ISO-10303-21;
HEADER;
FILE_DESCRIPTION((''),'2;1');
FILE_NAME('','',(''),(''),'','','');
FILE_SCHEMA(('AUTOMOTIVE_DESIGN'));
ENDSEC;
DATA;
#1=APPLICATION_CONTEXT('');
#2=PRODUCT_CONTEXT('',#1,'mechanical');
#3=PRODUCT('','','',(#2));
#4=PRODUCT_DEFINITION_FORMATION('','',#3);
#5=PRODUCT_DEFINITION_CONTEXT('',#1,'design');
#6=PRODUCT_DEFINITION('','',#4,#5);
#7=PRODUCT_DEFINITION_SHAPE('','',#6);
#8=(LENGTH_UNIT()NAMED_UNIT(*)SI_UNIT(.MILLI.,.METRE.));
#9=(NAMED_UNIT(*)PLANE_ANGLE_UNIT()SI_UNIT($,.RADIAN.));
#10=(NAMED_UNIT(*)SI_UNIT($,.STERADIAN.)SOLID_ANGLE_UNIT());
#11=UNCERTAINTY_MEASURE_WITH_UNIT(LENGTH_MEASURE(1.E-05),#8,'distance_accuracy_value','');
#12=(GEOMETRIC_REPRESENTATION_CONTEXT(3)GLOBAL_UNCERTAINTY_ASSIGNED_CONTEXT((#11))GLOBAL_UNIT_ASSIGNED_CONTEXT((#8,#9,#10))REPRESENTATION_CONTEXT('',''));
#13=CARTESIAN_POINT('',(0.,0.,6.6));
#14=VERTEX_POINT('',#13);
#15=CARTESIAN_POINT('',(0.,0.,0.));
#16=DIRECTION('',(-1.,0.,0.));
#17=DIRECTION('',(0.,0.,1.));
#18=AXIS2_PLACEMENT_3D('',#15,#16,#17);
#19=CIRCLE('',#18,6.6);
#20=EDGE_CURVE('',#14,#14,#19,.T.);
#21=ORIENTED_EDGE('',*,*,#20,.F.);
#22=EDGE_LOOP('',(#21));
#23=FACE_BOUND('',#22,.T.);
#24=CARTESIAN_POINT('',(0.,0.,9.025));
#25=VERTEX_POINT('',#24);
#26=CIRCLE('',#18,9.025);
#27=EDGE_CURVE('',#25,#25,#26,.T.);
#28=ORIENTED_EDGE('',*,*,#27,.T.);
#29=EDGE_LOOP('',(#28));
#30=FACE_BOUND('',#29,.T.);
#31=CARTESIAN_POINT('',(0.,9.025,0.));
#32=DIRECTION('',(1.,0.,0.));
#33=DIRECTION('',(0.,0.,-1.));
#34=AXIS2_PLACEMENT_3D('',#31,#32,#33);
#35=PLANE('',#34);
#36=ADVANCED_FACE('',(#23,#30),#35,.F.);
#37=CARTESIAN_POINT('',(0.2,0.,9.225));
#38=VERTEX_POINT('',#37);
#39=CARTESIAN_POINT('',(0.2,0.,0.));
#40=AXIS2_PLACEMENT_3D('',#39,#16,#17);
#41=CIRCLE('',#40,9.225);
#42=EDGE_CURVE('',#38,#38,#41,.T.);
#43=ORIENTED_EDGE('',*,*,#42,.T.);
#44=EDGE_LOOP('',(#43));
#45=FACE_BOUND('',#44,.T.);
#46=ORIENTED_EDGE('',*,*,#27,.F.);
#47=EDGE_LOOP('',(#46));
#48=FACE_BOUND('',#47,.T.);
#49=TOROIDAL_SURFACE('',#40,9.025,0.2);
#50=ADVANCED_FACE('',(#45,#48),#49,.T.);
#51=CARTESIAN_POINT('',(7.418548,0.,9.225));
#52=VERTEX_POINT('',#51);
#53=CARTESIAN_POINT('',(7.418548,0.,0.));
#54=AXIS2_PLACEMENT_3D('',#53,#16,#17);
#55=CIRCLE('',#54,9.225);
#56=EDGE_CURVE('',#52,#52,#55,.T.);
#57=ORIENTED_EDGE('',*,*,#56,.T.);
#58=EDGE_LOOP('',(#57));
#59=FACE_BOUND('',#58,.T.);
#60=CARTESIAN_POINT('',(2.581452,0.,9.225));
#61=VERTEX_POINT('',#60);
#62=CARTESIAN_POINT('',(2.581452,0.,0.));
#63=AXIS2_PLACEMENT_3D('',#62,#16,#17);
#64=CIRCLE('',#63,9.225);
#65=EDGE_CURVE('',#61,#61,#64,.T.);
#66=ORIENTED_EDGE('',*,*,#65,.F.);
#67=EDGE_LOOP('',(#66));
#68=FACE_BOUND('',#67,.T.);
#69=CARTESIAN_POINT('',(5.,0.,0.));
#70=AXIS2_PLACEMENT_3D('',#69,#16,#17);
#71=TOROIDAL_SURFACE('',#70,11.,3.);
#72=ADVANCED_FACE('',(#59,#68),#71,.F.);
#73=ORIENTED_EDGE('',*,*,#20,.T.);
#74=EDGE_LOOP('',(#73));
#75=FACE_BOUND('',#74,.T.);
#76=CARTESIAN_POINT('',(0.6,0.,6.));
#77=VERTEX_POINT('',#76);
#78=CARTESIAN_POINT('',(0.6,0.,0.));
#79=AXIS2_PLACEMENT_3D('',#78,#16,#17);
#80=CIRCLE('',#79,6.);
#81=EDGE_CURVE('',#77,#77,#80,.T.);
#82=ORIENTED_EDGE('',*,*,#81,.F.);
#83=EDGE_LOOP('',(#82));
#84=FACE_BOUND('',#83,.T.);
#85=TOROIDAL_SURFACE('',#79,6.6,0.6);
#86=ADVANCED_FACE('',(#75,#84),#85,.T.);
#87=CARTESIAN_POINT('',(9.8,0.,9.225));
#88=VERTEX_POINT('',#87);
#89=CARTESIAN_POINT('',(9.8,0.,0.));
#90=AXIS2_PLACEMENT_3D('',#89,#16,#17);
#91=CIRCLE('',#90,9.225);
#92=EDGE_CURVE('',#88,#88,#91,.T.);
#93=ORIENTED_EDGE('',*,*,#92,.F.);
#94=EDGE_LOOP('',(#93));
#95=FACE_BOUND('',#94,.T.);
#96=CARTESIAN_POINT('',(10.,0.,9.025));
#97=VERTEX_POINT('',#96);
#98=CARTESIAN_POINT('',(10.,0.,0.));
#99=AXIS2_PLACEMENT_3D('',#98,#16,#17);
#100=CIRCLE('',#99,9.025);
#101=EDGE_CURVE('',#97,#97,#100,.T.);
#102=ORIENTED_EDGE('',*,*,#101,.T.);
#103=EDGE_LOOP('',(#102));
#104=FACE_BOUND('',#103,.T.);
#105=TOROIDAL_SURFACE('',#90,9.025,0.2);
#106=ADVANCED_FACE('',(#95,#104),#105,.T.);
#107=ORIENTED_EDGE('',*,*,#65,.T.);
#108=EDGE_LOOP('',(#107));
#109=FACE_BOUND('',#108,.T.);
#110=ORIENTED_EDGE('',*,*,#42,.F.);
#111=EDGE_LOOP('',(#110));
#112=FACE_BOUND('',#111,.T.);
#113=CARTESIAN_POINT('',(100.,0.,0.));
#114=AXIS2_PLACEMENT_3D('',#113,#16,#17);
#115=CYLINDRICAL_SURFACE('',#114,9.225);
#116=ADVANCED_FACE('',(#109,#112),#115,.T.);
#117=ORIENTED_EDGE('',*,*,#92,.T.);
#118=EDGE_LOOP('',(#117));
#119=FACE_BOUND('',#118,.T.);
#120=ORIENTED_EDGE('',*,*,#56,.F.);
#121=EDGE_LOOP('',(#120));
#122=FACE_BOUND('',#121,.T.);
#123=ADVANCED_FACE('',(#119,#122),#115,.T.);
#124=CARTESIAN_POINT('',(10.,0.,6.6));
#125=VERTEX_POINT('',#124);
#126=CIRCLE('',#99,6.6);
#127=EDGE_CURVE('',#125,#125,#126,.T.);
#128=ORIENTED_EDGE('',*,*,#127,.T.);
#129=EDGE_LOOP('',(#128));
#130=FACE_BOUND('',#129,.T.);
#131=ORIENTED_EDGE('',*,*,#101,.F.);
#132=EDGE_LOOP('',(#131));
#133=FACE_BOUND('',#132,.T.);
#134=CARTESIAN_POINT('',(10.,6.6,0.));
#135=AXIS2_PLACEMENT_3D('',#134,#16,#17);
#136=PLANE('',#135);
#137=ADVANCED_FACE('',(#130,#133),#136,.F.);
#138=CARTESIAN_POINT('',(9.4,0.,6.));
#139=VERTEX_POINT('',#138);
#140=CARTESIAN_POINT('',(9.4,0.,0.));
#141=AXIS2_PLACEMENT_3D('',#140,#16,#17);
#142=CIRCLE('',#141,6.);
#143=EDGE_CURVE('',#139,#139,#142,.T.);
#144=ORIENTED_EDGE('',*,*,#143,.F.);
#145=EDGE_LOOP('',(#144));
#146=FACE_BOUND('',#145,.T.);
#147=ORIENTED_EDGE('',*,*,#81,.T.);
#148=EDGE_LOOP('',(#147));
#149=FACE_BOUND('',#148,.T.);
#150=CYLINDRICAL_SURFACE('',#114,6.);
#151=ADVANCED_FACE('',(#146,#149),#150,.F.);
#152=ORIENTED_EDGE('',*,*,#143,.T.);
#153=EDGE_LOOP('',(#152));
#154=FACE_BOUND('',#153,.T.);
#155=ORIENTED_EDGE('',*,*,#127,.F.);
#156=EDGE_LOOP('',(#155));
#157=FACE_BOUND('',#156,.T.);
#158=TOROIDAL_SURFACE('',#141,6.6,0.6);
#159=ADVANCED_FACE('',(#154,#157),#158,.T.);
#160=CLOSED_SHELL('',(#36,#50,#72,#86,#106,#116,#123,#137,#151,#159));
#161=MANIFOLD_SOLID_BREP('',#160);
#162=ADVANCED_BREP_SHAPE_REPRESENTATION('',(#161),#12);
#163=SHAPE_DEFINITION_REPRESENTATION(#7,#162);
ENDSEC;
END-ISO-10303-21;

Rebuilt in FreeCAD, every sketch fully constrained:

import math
import FreeCAD as App
import Part
import Sketcher
from FreeCAD import Vector
Q = App.Units.Quantity

doc = App.newDocument("Part")
params = doc.addObject("Spreadsheet::Sheet", "Params")
for row, (alias, value) in enumerate([
    ("sketch1_radius", "3 mm"),
    ("sketch1_radius2", "0.6 mm"),
    ("sketch1_radius3", "0.2 mm"),
    ("sketch1_width", "8.8 mm"),
    ("revolution_angle", "360 deg"),
], start=1):
    params.set(f"A{row}", alias)
    params.set(f"B{row}", "=" + value)
    params.setAlias(f"B{row}", alias)

body = doc.addObject("PartDesign::Body", "Body")

# Sketch on XY plane
sketch1 = body.newObject("Sketcher::SketchObject", "Sketch")
sketch1.AttachmentSupport = (doc.getObject("XY_Plane"), [""])
sketch1.MapMode = "FlatFace"
sketch1.addGeometry(Part.LineSegment(Vector(0.6, 6, 0), Vector(9.4, 6, 0)), False)
sketch1.addGeometry(Part.ArcOfCircle(Part.Circle(Vector(9.4, 6.6, 0), Vector(0, 0, 1), 0.6), math.radians(-90), math.radians(0)), False)
sketch1.addGeometry(Part.LineSegment(Vector(10, 6.6, 0), Vector(10, 9.03, 0)), False)
sketch1.addGeometry(Part.ArcOfCircle(Part.Circle(Vector(9.8, 9.02, 0), Vector(0, 0, 1), 0.2), math.radians(0), math.radians(90)), False)
sketch1.addGeometry(Part.LineSegment(Vector(9.8, 9.22, 0), Vector(7.42, 9.22, 0)), False)
sketch1.addGeometry(Part.ArcOfCircle(Part.Circle(Vector(5, 11, 0), Vector(0, 0, 1), 3), math.radians(-144), math.radians(-36)), False)
sketch1.addGeometry(Part.LineSegment(Vector(2.58, 9.22, 0), Vector(0.2, 9.22, 0)), False)
sketch1.addGeometry(Part.ArcOfCircle(Part.Circle(Vector(0.2, 9.02, 0), Vector(0, 0, 1), 0.2), math.radians(90), math.radians(180)), False)
sketch1.addGeometry(Part.LineSegment(Vector(0, 9.03, 0), Vector(0, 6.6, 0)), False)
sketch1.addGeometry(Part.ArcOfCircle(Part.Circle(Vector(0.6, 6.6, 0), Vector(0, 0, 1), 0.6), math.radians(180), math.radians(270)), False)
sketch1.addConstraint(Sketcher.Constraint("Tangent", 0, 2, 1, 1))
sketch1.addConstraint(Sketcher.Constraint("Tangent", 1, 2, 2, 1))
sketch1.addConstraint(Sketcher.Constraint("Tangent", 2, 2, 3, 1))
sketch1.addConstraint(Sketcher.Constraint("Tangent", 3, 2, 4, 1))
sketch1.addConstraint(Sketcher.Constraint("Coincident", 4, 2, 5, 2))
sketch1.addConstraint(Sketcher.Constraint("Coincident", 5, 1, 6, 1))
sketch1.addConstraint(Sketcher.Constraint("Tangent", 6, 2, 7, 1))
sketch1.addConstraint(Sketcher.Constraint("Tangent", 7, 2, 8, 1))
sketch1.addConstraint(Sketcher.Constraint("Tangent", 8, 2, 9, 1))
sketch1.addConstraint(Sketcher.Constraint("Tangent", 9, 2, 0, 1))
sketch1.addConstraint(Sketcher.Constraint("Horizontal", 0))
sketch1.addConstraint(Sketcher.Constraint("Vertical", 2))
sketch1.addConstraint(Sketcher.Constraint("Horizontal", 4))
sketch1.addConstraint(Sketcher.Constraint("Horizontal", 6))
sketch1.addConstraint(Sketcher.Constraint("Vertical", 8))
sketch1.addConstraint(Sketcher.Constraint("Equal", 3, 7))
sketch1.addConstraint(Sketcher.Constraint("Equal", 1, 9))
sketch1.addConstraint(Sketcher.Constraint("PointOnObject", 7, 2, -2))
sketch1.addConstraint(Sketcher.Constraint("Horizontal", 3, 3, 7, 3))
sketch1.addConstraint(Sketcher.Constraint("Equal", 4, 6))
sketch1.addConstraint(Sketcher.Constraint("Radius", 5, Q("3 mm")))
sketch1.addConstraint(Sketcher.Constraint("Radius", 1, Q("0.6 mm")))
sketch1.addConstraint(Sketcher.Constraint("Radius", 3, Q("0.2 mm")))
sketch1.addConstraint(Sketcher.Constraint("DistanceX", 0, 1, 0, 2, Q("8.8 mm")))
sketch1.addConstraint(Sketcher.Constraint("DistanceY", -1, 1, 5, 3, Q("11 mm")))
sketch1.addConstraint(Sketcher.Constraint("DistanceY", -1, 1, 0, 2, Q("6 mm")))
sketch1.addConstraint(Sketcher.Constraint("DistanceY", 2, 1, 2, 2, Q("2.425 mm")))
sketch1.setExpression("Constraints[20]", "Params.sketch1_radius")
sketch1.setExpression("Constraints[21]", "Params.sketch1_radius2")
sketch1.setExpression("Constraints[22]", "Params.sketch1_radius3")
sketch1.setExpression("Constraints[23]", "Params.sketch1_width")
revolution = body.newObject("PartDesign::Revolution", "Revolution")
revolution.Profile = sketch1
revolution.ReferenceAxis = (sketch1, ["H_Axis"])
revolution.setExpression("Angle", "Params.revolution_angle")

doc.recompute()
